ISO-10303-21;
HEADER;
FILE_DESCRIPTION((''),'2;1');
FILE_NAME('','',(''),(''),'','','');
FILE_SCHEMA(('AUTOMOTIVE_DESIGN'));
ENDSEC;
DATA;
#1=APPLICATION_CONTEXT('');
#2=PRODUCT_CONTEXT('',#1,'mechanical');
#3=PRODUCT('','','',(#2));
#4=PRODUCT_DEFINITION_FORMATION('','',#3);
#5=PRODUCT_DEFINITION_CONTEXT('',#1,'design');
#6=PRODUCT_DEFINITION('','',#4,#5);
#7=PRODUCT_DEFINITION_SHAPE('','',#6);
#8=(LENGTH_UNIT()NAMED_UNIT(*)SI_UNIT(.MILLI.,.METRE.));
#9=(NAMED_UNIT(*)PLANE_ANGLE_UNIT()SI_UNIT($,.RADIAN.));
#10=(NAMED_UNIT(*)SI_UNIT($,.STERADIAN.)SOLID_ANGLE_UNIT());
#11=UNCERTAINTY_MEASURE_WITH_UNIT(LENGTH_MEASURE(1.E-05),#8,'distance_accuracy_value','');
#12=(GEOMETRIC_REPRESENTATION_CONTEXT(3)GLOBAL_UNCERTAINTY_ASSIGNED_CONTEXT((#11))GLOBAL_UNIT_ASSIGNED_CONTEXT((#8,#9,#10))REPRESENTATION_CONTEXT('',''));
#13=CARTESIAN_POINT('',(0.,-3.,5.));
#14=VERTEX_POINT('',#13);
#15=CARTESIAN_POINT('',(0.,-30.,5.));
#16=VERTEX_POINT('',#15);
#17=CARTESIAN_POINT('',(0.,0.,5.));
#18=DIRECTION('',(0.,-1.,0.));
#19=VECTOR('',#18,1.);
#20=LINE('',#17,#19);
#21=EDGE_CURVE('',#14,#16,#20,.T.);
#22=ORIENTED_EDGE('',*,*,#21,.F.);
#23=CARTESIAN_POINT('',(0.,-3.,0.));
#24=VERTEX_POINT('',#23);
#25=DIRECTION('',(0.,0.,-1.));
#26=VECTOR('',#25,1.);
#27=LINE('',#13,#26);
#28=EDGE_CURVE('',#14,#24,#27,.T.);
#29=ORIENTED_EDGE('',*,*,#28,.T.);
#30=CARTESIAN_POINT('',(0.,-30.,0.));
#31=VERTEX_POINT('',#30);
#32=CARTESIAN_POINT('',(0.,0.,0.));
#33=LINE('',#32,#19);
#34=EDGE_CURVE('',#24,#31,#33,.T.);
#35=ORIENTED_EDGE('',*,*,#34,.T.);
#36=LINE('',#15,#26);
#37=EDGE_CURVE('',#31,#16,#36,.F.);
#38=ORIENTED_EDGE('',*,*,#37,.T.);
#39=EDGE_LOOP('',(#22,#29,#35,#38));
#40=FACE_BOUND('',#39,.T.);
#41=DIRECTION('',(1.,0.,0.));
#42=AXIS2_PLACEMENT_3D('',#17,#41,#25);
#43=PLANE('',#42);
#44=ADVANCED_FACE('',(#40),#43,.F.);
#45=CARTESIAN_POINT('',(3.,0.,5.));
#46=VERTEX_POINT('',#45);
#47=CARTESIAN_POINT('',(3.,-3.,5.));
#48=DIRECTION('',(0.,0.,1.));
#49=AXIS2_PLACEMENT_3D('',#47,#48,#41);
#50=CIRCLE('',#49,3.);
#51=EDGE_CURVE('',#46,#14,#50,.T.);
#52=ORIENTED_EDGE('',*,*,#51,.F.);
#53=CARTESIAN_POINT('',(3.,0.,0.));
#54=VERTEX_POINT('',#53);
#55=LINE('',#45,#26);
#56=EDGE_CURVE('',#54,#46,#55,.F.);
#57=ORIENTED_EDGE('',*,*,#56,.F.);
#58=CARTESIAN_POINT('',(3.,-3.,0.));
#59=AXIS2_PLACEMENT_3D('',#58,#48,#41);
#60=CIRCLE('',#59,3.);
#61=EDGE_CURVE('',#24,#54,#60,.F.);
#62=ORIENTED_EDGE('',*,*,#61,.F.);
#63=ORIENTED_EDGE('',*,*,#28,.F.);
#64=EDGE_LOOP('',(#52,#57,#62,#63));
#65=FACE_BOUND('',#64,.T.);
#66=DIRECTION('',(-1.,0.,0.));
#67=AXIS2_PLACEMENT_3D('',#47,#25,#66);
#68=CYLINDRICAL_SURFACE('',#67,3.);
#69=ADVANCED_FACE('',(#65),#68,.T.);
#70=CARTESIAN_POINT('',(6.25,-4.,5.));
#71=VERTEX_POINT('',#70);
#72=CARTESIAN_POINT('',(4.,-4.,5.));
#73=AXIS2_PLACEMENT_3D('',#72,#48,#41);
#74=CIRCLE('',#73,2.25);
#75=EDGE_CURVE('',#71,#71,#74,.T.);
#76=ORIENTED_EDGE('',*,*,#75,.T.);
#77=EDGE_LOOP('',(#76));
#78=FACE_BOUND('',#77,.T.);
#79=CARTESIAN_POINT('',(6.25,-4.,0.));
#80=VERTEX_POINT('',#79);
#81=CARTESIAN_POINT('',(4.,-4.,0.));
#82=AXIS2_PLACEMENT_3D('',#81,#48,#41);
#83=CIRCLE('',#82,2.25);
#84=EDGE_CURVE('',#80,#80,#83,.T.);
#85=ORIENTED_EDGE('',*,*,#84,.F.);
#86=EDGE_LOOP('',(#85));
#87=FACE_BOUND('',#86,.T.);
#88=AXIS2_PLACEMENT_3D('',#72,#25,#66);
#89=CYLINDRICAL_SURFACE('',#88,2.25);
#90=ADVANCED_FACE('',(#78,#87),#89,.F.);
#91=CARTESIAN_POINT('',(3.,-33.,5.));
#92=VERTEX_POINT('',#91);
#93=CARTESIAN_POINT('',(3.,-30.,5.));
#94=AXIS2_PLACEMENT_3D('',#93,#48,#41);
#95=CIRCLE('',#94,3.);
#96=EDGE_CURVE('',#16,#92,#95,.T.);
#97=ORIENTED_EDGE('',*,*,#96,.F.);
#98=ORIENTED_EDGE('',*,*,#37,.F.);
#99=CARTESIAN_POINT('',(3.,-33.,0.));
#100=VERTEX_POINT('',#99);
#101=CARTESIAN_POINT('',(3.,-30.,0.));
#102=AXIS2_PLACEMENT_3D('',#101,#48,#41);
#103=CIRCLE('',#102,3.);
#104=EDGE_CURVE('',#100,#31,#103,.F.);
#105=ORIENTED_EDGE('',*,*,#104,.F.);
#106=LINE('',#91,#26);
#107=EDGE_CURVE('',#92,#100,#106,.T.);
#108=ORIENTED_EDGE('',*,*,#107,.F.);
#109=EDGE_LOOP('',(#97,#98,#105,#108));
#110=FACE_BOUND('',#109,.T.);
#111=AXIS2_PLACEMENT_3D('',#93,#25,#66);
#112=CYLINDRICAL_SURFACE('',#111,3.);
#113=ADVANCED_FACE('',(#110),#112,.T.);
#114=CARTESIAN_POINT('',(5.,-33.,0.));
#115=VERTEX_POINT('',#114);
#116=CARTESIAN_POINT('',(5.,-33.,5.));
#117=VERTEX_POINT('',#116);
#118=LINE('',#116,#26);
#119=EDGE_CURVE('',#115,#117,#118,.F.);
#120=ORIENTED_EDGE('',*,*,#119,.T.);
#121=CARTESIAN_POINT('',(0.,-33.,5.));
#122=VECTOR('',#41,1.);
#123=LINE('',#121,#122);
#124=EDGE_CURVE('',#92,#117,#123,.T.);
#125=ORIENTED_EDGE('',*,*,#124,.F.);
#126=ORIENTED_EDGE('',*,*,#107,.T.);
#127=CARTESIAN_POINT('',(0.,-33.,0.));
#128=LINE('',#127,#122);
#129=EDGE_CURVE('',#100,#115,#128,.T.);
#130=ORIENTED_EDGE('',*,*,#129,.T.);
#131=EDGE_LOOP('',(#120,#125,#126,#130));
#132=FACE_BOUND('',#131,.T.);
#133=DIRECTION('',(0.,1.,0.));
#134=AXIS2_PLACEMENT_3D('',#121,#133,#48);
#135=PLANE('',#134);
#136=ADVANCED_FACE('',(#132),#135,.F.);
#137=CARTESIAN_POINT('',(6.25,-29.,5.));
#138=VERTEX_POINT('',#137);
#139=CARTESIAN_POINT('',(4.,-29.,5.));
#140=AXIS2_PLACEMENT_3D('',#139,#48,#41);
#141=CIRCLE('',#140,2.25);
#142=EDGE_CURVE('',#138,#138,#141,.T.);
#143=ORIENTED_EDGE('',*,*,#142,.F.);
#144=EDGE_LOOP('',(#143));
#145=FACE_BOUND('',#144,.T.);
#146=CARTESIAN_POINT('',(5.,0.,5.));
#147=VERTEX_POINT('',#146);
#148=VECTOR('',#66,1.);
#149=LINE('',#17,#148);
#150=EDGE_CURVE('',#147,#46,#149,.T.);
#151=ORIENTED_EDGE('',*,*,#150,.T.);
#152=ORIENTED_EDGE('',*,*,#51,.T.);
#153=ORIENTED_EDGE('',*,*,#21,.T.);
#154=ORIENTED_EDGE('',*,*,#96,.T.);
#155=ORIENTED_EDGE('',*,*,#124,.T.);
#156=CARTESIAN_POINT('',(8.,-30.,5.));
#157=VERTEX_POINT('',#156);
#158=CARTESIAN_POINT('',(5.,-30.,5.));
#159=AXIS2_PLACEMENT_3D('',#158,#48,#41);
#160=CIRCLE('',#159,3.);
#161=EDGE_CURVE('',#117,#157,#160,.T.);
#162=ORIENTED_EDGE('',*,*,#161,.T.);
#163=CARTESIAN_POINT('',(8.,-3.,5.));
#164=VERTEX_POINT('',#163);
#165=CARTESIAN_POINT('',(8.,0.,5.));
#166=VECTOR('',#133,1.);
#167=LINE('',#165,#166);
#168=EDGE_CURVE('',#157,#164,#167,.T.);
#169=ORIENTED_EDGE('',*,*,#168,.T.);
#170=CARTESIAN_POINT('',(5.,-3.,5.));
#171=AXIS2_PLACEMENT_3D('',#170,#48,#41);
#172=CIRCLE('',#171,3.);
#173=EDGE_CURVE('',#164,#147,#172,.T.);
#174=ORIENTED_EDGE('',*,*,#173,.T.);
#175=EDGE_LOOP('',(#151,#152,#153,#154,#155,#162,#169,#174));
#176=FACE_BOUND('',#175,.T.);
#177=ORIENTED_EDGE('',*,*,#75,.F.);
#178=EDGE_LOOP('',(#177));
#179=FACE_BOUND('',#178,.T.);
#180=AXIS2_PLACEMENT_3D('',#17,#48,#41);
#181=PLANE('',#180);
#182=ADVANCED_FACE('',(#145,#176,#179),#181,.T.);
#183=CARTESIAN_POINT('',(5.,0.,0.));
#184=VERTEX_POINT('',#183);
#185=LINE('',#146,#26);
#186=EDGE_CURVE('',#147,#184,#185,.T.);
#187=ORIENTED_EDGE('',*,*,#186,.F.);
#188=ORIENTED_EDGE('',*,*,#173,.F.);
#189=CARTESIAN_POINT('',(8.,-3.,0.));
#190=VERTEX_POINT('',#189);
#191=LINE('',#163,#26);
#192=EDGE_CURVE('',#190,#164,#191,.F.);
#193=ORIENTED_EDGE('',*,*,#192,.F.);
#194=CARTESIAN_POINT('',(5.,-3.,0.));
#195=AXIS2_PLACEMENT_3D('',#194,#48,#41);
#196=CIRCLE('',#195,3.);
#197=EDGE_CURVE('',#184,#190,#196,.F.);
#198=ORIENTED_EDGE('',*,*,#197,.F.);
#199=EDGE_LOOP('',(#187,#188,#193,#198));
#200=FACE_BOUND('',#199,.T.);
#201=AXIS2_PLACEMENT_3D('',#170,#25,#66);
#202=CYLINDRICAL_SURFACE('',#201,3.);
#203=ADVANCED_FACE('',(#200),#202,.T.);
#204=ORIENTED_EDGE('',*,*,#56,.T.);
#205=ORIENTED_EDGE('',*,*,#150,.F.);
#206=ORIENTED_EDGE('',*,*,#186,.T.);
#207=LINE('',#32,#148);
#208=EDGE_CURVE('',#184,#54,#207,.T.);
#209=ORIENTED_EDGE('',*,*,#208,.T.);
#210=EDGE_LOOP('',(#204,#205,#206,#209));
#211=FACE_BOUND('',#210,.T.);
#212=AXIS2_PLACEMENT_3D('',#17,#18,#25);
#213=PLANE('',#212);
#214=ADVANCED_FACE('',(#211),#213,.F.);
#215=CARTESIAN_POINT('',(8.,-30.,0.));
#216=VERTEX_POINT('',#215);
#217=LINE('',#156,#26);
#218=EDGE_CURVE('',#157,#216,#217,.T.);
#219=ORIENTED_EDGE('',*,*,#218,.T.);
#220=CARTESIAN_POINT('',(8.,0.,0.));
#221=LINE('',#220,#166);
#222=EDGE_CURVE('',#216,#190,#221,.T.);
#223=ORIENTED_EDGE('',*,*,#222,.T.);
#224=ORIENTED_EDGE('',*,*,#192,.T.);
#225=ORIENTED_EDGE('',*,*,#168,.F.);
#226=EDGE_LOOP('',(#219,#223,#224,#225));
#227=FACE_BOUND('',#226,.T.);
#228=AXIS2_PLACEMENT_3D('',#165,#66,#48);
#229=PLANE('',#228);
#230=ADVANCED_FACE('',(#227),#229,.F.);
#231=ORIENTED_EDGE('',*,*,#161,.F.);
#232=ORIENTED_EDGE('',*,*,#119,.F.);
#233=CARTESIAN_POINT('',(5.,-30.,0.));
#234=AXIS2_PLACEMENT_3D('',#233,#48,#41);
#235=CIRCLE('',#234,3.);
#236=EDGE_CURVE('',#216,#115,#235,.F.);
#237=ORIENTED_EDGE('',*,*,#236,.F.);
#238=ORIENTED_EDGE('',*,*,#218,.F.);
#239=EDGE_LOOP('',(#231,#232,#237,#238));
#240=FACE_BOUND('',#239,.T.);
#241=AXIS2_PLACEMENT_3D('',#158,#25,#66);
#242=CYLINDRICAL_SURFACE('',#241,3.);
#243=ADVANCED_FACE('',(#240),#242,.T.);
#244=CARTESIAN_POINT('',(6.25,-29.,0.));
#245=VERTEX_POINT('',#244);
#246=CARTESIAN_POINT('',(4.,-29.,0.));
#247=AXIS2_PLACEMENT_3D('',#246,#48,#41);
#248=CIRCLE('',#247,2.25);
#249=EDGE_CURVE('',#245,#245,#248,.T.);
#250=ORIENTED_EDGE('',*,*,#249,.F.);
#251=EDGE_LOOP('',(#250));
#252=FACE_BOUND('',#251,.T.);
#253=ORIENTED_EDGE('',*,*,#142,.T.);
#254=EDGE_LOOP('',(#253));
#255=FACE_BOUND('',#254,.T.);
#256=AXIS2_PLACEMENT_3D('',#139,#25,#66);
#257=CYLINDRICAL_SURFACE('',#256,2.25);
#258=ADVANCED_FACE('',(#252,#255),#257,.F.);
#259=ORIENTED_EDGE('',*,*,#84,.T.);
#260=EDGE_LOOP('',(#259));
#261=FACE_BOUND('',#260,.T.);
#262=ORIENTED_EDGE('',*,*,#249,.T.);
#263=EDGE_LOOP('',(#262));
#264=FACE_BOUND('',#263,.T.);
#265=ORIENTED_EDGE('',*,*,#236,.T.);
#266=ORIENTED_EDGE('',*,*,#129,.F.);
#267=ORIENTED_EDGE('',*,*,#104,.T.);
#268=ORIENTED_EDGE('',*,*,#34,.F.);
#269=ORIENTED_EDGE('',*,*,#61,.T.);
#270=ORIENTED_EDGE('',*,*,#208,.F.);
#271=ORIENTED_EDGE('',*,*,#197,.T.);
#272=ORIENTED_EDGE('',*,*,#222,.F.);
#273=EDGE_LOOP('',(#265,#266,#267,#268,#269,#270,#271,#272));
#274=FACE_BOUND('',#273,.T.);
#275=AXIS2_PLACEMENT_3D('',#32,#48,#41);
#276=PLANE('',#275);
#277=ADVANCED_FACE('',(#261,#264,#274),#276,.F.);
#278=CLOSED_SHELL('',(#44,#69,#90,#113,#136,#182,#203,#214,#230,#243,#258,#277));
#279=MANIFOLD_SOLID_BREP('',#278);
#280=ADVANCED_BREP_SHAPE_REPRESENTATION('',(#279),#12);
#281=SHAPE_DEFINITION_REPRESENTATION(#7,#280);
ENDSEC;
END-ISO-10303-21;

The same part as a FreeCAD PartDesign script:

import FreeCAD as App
import Part
import Sketcher
Q = App.Units.Quantity


def edges_at(feature, points):
    """Names of the edges that pass closest to the given points."""
    edges = feature.Shape.Edges
    near = lambda p: min(range(len(edges)), key=lambda i: edges[i].distToShape(Part.Vertex(*p))[0])
    return sorted({f"Edge{near(p) + 1}" for p in points})

doc = App.newDocument("Part")
params = doc.addObject("Spreadsheet::Sheet", "Params")
for row, (alias, value) in enumerate([
    ("sketch1_diameter", "4.5 mm"),
    ("sketch1_width", "8 mm"),
    ("sketch1_height", "33 mm"),
    ("pad1_length", "5 mm"),
    ("fillet_radius", "3 mm"),
], start=1):
    params.set(f"A{row}", alias)
    params.set(f"B{row}", "=" + value)
    params.setAlias(f"B{row}", alias)

body = doc.addObject("PartDesign::Body", "Body")

# Sketch on XY plane
sketch1 = body.newObject("Sketcher::SketchObject", "Sketch")
sketch1.AttachmentSupport = (doc.getObject("XY_Plane"), [""])
sketch1.MapMode = "FlatFace"
sketch1.addGeometry(Part.LineSegment(App.Vector(0, 0, 0), App.Vector(0, -33, 0)), False)
sketch1.addGeometry(Part.LineSegment(App.Vector(0, -33, 0), App.Vector(8, -33, 0)), False)
sketch1.addGeometry(Part.LineSegment(App.Vector(8, -33, 0), App.Vector(8, 0, 0)), False)
sketch1.addGeometry(Part.LineSegment(App.Vector(8, 0, 0), App.Vector(0, 0, 0)), False)
sketch1.addGeometry(Part.Circle(App.Vector(4, -29, 0), App.Vector(0, 0, 1), 2.2), False)
sketch1.addGeometry(Part.Circle(App.Vector(4, -4, 0), App.Vector(0, 0, 1), 2.2), False)
sketch1.addConstraint(Sketcher.Constraint("Coincident", 0, 2, 1, 1))
sketch1.addConstraint(Sketcher.Constraint("Coincident", 1, 2, 2, 1))
sketch1.addConstraint(Sketcher.Constraint("Coincident", 2, 2, 3, 1))
sketch1.addConstraint(Sketcher.Constraint("Coincident", 3, 2, 0, 1))
sketch1.addConstraint(Sketcher.Constraint("Vertical", 0))
sketch1.addConstraint(Sketcher.Constraint("Horizontal", 1))
sketch1.addConstraint(Sketcher.Constraint("Vertical", 2))
sketch1.addConstraint(Sketcher.Constraint("Horizontal", 3))
sketch1.addConstraint(Sketcher.Constraint("Coincident", 3, 2, -1, 1))
sketch1.addConstraint(Sketcher.Constraint("Equal", 4, 5))
sketch1.addConstraint(Sketcher.Constraint("Vertical", 4, 3, 5, 3))
sketch1.addConstraint(Sketcher.Constraint("Diameter", 4, Q("4.5 mm")))
sketch1.addConstraint(Sketcher.Constraint("DistanceX", 1, 1, 1, 2, Q("8 mm")))
sketch1.addConstraint(Sketcher.Constraint("DistanceY", 0, 2, 0, 1, Q("33 mm")))
sketch1.addConstraint(Sketcher.Constraint("DistanceX", -1, 1, 4, 3, Q("4 mm")))
sketch1.addConstraint(Sketcher.Constraint("DistanceY", 4, 3, -1, 1, Q("29 mm")))
sketch1.addConstraint(Sketcher.Constraint("DistanceY", 5, 3, -1, 1, Q("4 mm")))
sketch1.setExpression("Constraints[11]", "Params.sketch1_diameter")
sketch1.setExpression("Constraints[12]", "Params.sketch1_width")
sketch1.setExpression("Constraints[13]", "Params.sketch1_height")
pad1 = body.newObject("PartDesign::Pad", "Pad")
pad1.Profile = sketch1
pad1.setExpression("Length", "Params.pad1_length")
doc.recompute()

fillet = body.newObject("PartDesign::Fillet", "Fillet")
fillet.Base = (pad1, edges_at(pad1, [
    (0, 0, 2.5),
    (8, 0, 2.5),
    (8, -33, 2.5),
    (0, -33, 2.5),
]))
fillet.setExpression("Radius", "Params.fillet_radius")

doc.recompute()
